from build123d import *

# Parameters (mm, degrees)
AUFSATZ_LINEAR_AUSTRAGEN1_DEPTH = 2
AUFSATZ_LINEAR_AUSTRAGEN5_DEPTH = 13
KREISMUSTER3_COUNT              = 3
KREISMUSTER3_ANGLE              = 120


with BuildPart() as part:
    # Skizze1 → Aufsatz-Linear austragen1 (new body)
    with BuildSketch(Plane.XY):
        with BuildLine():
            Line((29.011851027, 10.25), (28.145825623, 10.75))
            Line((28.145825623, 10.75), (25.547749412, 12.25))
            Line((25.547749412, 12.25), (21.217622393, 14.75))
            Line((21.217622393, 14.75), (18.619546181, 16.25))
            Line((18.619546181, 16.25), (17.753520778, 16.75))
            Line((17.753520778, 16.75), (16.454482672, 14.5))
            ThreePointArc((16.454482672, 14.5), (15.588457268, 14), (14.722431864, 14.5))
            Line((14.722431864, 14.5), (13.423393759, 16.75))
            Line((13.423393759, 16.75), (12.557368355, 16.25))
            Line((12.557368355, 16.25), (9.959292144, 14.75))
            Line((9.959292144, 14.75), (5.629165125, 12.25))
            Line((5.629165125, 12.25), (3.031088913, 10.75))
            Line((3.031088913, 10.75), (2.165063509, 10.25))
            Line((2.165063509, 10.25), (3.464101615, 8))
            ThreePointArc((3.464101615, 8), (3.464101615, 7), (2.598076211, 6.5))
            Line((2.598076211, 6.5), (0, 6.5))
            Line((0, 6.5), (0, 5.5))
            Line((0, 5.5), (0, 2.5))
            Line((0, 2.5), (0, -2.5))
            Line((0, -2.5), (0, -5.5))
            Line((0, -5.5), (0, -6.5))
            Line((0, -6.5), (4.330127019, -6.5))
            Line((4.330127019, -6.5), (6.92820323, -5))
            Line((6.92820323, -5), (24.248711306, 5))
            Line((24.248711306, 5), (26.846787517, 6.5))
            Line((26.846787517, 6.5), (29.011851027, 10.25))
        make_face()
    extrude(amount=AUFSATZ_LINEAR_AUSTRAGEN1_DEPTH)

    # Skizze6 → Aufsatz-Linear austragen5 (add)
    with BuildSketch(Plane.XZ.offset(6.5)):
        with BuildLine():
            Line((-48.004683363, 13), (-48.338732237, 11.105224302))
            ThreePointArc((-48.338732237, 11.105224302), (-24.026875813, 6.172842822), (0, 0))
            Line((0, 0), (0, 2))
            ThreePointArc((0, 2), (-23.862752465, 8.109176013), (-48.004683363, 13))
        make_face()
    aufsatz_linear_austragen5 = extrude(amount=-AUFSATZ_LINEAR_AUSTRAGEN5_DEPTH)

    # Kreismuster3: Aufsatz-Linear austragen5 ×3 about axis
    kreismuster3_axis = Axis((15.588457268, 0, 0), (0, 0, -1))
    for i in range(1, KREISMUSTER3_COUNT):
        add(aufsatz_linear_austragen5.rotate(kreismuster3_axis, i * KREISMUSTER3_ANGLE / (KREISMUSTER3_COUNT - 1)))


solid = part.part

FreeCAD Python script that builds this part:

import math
import FreeCAD as App
import Part
import Sketcher
from FreeCAD import Vector
Q = App.Units.Quantity

doc = App.newDocument("Part")
body = doc.addObject("PartDesign::Body", "Body")

# Sketch on XY plane
sketch1 = body.newObject("Sketcher::SketchObject", "Sketch")
sketch1.AttachmentSupport = (doc.getObject("XY_Plane"), [""])
sketch1.MapMode = "FlatFace"
sketch1.addGeometry([
    Part.LineSegment(Vector(29, 10.2, 0), Vector(28.1, 10.8, 0)),  # 0
    Part.LineSegment(Vector(28.1, 10.8, 0), Vector(25.5, 12.2, 0)),  # 1
    Part.LineSegment(Vector(25.5, 12.2, 0), Vector(21.2, 14.8, 0)),  # 2
    Part.LineSegment(Vector(21.2, 14.8, 0), Vector(18.6, 16.2, 0)),  # 3
    Part.LineSegment(Vector(18.6, 16.2, 0), Vector(17.8, 16.8, 0)),  # 4
    Part.LineSegment(Vector(17.8, 16.8, 0), Vector(16.5, 14.5, 0)),  # 5
    Part.ArcOfCircle(Part.Circle(Vector(15.6, 15, 0), Vector(0, 0, 1), 1), math.radians(-150), math.radians(-30)),  # 6
    Part.LineSegment(Vector(14.7, 14.5, 0), Vector(13.4, 16.8, 0)),  # 7
    Part.LineSegment(Vector(13.4, 16.8, 0), Vector(12.6, 16.2, 0)),  # 8
    Part.LineSegment(Vector(12.6, 16.2, 0), Vector(10, 14.8, 0)),  # 9
    Part.LineSegment(Vector(10, 14.8, 0), Vector(5.6, 12.2, 0)),  # 10
    Part.LineSegment(Vector(5.6, 12.2, 0), Vector(2.2, 10.2, 0)),  # 11
    Part.LineSegment(Vector(2.2, 10.2, 0), Vector(3.5, 8, 0)),  # 12
    Part.ArcOfCircle(Part.Circle(Vector(2.6, 7.5, 0), Vector(0, 0, 1), 1), math.radians(-90), math.radians(30)),  # 13
    Part.LineSegment(Vector(2.6, 6.5, 0), Vector(0, 6.5, 0)),  # 14
    Part.LineSegment(Vector(0, 6.5, 0), Vector(0, -6.5, 0)),  # 15
    Part.LineSegment(Vector(0, -6.5, 0), Vector(4.3, -6.5, 0)),  # 16
    Part.LineSegment(Vector(4.3, -6.5, 0), Vector(6.9, -5, 0)),  # 17
    Part.LineSegment(Vector(6.9, -5, 0), Vector(24.2, 5, 0)),  # 18
    Part.LineSegment(Vector(24.2, 5, 0), Vector(26.8, 6.5, 0)),  # 19
    Part.LineSegment(Vector(26.8, 6.5, 0), Vector(29, 10.2, 0)),  # 20
], False)
sketch1.addConstraint([
    Sketcher.Constraint("Coincident", 0, 2, 1, 1),
    Sketcher.Constraint("Coincident", 1, 2, 2, 1),
    Sketcher.Constraint("Coincident", 2, 2, 3, 1),
    Sketcher.Constraint("Coincident", 3, 2, 4, 1),
    Sketcher.Constraint("Coincident", 4, 2, 5, 1),
    Sketcher.Constraint("Tangent", 5, 2, 6, 2),
    Sketcher.Constraint("Tangent", 6, 1, 7, 1),
    Sketcher.Constraint("Coincident", 7, 2, 8, 1),
    Sketcher.Constraint("Coincident", 8, 2, 9, 1),
    Sketcher.Constraint("Coincident", 9, 2, 10, 1),
    Sketcher.Constraint("Coincident", 10, 2, 11, 1),
    Sketcher.Constraint("Coincident", 11, 2, 12, 1),
    Sketcher.Constraint("Tangent", 12, 2, 13, 2),
    Sketcher.Constraint("Tangent", 13, 1, 14, 1),
    Sketcher.Constraint("Coincident", 14, 2, 15, 1),
    Sketcher.Constraint("Coincident", 15, 2, 16, 1),
    Sketcher.Constraint("Coincident", 16, 2, 17, 1),
    Sketcher.Constraint("Coincident", 17, 2, 18, 1),
    Sketcher.Constraint("Coincident", 18, 2, 19, 1),
    Sketcher.Constraint("Coincident", 19, 2, 20, 1),
    Sketcher.Constraint("Coincident", 20, 2, 0, 1),
    Sketcher.Constraint("Horizontal", 14),
    Sketcher.Constraint("Vertical", 15),
    Sketcher.Constraint("Horizontal", 16),
    Sketcher.Constraint("Equal", 6, 13),
    Sketcher.Constraint("Symmetric", 14, 2, 15, 2, -1, 1),
    Sketcher.Constraint("Parallel", 0, 1),
    Sketcher.Constraint("Parallel", 1, 2),
    Sketcher.Constraint("Parallel", 2, 3),
    Sketcher.Constraint("Parallel", 3, 4),
    Sketcher.Constraint("Perpendicular", 4, 5),
    Sketcher.Constraint("Perpendicular", 7, 8),
    Sketcher.Constraint("Parallel", 8, 9),
    Sketcher.Constraint("Parallel", 9, 10),
    Sketcher.Constraint("Parallel", 10, 11),
    Sketcher.Constraint("Perpendicular", 11, 12),
    Sketcher.Constraint("Perpendicular", 12, 17),
    Sketcher.Constraint("Parallel", 17, 18),
    Sketcher.Constraint("Parallel", 18, 19),
    Sketcher.Constraint("Parallel", 5, 20),
    Sketcher.Constraint("Horizontal", 5, 2, 6, 1),
    Sketcher.Constraint("Horizontal", 4, 2, 7, 2),
    Sketcher.Constraint("Horizontal", 3, 2, 8, 2),
    Sketcher.Constraint("Horizontal", 2, 2, 9, 2),
    Sketcher.Constraint("Horizontal", 1, 2, 10, 2),
    Sketcher.Constraint("Horizontal", 14, 2, 19, 2),
    Sketcher.Constraint("Horizontal", 11, 2, 20, 2),
    Sketcher.Constraint("Equal", 1, 3),
    Sketcher.Constraint("Equal", 0, 4),
    Sketcher.Constraint("Equal", 7, 12),
    Sketcher.Constraint("Equal", 9, 17),
    Sketcher.Constraint("Equal", 17, 19),
    Sketcher.Constraint("Radius", 6, Q("1 mm")),
    Sketcher.Constraint("DistanceY", 15, 2, 15, 1, Q("13 mm")),
    Sketcher.Constraint("Angle", 0, Q("150 deg")),
    Sketcher.Constraint("Distance", 0, Q("1 mm")),
    Sketcher.Constraint("Distance", 1, Q("3 mm")),
    Sketcher.Constraint("Distance", 2, Q("5 mm")),
    Sketcher.Constraint("DistanceY", -1, 1, 0, 2, Q("10.75 mm")),
    Sketcher.Constraint("DistanceX", -1, 1, 12, 2, Q("3.464102 mm")),
])
pad1 = body.newObject("PartDesign::Pad", "Pad")
pad1.Profile = sketch1
pad1.Length = 2

# Sketch on XZ plane
sketch2 = body.newObject("Sketcher::SketchObject", "Sketch001")
sketch2.AttachmentSupport = (doc.getObject("XZ_Plane"), [""])
sketch2.MapMode = "FlatFace"
sketch2.AttachmentOffset = App.Placement(Vector(0, 0, 6.5), App.Rotation())
sketch2.addGeometry([
    Part.LineSegment(Vector(-48, 13, 0), Vector(-48.3, 11.1, 0)),
    Part.ArcOfCircle(Part.Circle(Vector(-132.3, -465.1, 0), Vector(0, 0, 1), 483.5), math.radians(74.12), math.radians(80)),
    Part.LineSegment(Vector(0, 0, 0), Vector(0, 2, 0)),
    Part.ArcOfCircle(Part.Circle(Vector(-132.3, -465.1, 0), Vector(0, 0, 1), 485.4), math.radians(74.19), math.radians(80)),
], False)
sketch2.addConstraint([
    Sketcher.Constraint("Coincident", 0, 2, 1, 2),
    Sketcher.Constraint("Coincident", 1, 1, 2, 1),
    Sketcher.Constraint("Coincident", 2, 2, 3, 1),
    Sketcher.Constraint("Coincident", 3, 2, 0, 1),
    Sketcher.Constraint("Vertical", 2),
    Sketcher.Constraint("Coincident", 3, 3, 1, 3),
    Sketcher.Constraint("PointOnObject", 2, 2, -2),
    Sketcher.Constraint("DistanceY", 2, 1, 2, 2, Q("2 mm")),
    Sketcher.Constraint("Radius", 3, Q("485.43 mm")),
    Sketcher.Constraint("DistanceY", -1, 1, 2, 2, Q("2 mm")),
    Sketcher.Constraint("DistanceY", -1, 1, 3, 2, Q("13 mm")),
    Sketcher.Constraint("DistanceX", 1, 3, -1, 1, Q("132.286189 mm")),
    Sketcher.Constraint("DistanceY", 1, 3, 0, 2, Q("476.162661 mm")),
])
pad2 = body.newObject("PartDesign::Pad", "Pad001")
pad2.Profile = sketch2
pad2.Length = 13
pad2.Reversed = True
doc.recompute()

datumline = body.newObject("PartDesign::Line", "DatumLine")
datumline.Placement = App.Placement(Vector(15.588457, 0, 0), App.Rotation(Vector(0, 0, 1), Vector(0, 0, -1)))
polarpattern = body.newObject("PartDesign::PolarPattern", "PolarPattern")
polarpattern.Originals = [pad2]
polarpattern.Axis = (datumline, [""])
polarpattern.Angle = 120
polarpattern.Occurrences = 3
body.Tip = polarpattern

doc.recompute()
